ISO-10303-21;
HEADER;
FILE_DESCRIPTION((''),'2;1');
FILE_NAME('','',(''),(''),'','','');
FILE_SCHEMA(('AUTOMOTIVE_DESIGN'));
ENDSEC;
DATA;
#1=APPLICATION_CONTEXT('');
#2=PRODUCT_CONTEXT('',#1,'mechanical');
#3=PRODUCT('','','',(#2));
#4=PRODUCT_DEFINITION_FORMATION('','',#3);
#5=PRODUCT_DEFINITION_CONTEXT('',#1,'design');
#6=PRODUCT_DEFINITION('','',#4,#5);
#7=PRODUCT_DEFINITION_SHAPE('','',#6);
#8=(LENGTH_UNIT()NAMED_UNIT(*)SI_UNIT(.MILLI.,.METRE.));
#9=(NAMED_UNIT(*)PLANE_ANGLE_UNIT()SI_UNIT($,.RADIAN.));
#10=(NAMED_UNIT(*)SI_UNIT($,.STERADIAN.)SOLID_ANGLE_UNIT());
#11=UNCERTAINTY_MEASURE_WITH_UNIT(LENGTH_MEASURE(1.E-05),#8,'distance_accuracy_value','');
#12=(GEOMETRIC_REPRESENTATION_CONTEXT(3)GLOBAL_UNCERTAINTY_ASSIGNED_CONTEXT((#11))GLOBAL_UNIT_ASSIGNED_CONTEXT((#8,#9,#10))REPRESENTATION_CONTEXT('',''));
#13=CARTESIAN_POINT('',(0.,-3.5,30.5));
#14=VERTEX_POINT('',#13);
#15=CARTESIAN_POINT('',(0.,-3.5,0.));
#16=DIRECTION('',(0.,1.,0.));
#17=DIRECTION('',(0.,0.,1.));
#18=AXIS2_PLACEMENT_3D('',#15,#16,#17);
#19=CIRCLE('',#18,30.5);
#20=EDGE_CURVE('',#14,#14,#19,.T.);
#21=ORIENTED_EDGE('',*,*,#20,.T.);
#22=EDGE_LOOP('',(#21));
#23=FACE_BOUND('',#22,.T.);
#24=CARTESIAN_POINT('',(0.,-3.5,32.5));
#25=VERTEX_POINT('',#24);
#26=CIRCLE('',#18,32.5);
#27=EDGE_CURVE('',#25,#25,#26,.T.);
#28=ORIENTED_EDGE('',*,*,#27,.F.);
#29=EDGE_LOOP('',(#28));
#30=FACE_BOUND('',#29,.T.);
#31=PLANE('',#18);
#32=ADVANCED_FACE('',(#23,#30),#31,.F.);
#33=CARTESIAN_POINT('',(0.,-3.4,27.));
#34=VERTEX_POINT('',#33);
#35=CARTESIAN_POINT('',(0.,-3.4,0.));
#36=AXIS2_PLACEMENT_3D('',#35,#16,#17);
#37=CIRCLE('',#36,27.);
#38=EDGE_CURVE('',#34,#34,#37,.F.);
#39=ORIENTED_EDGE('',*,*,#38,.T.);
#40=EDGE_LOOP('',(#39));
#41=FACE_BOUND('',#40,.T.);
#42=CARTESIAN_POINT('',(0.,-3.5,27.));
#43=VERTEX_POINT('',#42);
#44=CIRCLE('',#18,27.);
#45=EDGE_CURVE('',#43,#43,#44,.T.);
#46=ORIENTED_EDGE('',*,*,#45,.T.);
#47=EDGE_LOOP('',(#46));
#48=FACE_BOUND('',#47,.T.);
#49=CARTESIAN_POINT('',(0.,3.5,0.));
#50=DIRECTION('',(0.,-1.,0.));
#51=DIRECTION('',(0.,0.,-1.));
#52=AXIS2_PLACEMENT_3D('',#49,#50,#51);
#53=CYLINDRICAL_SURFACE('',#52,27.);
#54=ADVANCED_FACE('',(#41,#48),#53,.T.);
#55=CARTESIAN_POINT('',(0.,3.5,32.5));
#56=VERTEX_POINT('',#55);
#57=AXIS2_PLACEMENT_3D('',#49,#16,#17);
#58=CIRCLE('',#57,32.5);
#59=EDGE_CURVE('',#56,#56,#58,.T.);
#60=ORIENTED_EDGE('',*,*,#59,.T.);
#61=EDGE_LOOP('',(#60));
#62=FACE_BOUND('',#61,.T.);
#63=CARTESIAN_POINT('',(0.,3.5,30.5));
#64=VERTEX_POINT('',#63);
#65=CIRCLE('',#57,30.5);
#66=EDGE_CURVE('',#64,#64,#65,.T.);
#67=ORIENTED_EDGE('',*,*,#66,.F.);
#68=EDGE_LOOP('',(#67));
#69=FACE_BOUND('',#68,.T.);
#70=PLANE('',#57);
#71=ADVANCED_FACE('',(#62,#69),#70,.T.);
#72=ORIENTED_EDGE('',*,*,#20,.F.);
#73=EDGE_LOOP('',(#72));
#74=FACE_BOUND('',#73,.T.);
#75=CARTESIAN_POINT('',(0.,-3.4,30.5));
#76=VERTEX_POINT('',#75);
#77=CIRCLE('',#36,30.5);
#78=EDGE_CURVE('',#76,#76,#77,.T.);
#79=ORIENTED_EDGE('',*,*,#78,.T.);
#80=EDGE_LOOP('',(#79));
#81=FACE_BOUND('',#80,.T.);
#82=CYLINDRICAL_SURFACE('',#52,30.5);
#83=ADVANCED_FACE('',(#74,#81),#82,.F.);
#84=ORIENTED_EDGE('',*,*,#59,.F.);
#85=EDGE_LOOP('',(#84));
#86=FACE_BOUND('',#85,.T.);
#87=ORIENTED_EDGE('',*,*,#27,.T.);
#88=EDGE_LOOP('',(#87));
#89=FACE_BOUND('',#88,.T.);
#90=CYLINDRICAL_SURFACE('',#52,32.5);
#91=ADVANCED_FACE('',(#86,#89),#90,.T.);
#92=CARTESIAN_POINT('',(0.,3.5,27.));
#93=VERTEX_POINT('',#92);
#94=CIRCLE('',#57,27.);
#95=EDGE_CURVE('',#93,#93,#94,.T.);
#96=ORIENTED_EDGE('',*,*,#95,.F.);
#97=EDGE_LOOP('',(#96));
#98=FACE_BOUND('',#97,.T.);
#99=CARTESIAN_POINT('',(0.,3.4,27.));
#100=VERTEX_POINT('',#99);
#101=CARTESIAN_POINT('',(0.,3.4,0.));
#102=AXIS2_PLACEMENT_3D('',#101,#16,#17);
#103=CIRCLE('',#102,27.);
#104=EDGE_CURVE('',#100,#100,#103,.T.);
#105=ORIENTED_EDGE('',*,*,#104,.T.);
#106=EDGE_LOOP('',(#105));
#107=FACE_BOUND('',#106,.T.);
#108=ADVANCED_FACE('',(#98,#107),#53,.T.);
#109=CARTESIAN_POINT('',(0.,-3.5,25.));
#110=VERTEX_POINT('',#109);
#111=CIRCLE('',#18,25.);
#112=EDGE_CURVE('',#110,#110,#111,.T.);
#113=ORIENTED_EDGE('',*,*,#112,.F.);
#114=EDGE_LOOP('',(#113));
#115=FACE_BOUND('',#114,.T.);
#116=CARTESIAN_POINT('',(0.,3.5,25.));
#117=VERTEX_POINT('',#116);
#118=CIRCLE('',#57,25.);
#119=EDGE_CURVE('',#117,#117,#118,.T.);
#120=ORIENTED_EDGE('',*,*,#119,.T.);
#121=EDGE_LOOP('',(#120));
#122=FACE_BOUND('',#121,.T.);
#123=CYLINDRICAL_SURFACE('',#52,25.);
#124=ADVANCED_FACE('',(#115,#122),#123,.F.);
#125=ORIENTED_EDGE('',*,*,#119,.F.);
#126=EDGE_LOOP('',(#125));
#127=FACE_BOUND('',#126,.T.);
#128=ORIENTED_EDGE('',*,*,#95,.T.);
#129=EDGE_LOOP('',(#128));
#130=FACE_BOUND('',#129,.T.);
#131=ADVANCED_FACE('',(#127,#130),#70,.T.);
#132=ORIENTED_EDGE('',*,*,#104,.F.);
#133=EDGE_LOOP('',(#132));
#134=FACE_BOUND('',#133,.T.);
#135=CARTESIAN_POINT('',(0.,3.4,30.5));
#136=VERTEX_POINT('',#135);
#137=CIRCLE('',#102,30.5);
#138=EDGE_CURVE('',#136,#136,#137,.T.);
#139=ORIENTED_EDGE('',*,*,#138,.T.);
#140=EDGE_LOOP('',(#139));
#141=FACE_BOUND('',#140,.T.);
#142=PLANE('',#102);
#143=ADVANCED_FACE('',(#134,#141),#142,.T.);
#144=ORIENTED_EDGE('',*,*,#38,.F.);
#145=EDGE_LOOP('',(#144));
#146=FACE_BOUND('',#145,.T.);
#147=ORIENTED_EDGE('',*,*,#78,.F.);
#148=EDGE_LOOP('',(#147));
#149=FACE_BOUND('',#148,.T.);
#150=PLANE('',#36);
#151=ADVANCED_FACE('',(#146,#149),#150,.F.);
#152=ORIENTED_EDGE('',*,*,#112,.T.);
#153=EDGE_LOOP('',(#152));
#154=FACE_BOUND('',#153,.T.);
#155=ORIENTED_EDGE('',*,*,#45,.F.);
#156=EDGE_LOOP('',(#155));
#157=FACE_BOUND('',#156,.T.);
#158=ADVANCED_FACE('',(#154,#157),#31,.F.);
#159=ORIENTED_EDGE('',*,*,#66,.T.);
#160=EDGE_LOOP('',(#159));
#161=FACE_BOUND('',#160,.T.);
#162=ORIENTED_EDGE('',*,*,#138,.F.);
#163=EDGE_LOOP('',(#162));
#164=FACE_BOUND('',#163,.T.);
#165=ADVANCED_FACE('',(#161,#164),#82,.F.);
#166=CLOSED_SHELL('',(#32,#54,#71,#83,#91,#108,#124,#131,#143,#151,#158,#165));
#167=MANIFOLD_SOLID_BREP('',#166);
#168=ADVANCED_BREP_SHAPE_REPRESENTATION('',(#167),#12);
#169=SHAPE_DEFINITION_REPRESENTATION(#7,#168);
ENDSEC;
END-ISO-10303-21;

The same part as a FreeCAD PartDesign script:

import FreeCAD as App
import Part
import Sketcher

doc = App.newDocument("Part")
body = doc.addObject("PartDesign::Body", "Body")

sketch1 = body.newObject("Sketcher::SketchObject", "Sketch")
sketch1.AttachmentSupport = (doc.getObject("XZ_Plane"), [""])
sketch1.MapMode = "FlatFace"
sketch1.addGeometry([
    Part.Circle(App.Vector(0, 0, 0), App.Vector(0, 0, 1), 32),
    Part.Circle(App.Vector(0, 0, 0), App.Vector(0, 0, 1), 30),
], False)
sketch1.addConstraint([
    Sketcher.Constraint("Coincident", 0, 3, -1, 1),
    Sketcher.Constraint("Coincident", 1, 3, -1, 1),
    Sketcher.Constraint("Diameter", 0, 65.0),
    Sketcher.Constraint("Diameter", 1, 61.0),
])
pad1 = body.newObject("PartDesign::Pad", "Pad")
pad1.Profile = sketch1
pad1.Length = 7
pad1.Midplane = True
body2 = doc.addObject("PartDesign::Body", "Body001")

sketch2 = body2.newObject("Sketcher::SketchObject", "Sketch001")
sketch2.AttachmentSupport = (doc.getObject("XZ_Plane001"), [""])
sketch2.MapMode = "FlatFace"
sketch2.addGeometry([
    Part.Circle(App.Vector(0, 0, 0), App.Vector(0, 0, 1), 27),
    Part.Circle(App.Vector(0, 0, 0), App.Vector(0, 0, 1), 25),
], False)
sketch2.addConstraint([
    Sketcher.Constraint("Coincident", 0, 3, -1, 1),
    Sketcher.Constraint("Coincident", 1, 3, -1, 1),
    Sketcher.Constraint("Diameter", 0, 54.0),
    Sketcher.Constraint("Diameter", 1, 50.0),
])
pad2 = body2.newObject("PartDesign::Pad", "Pad001")
pad2.Profile = sketch2
pad2.Length = 7
pad2.Midplane = True
body.AllowCompound = True
doc.recompute()

boolean = body.newObject("PartDesign::Boolean", "Boolean")
boolean.Type = "Fuse"
boolean.addObjects([body2])

sketch3 = body.newObject("Sketcher::SketchObject", "Sketch002")
sketch3.AttachmentSupport = (doc.getObject("XZ_Plane"), [""])
sketch3.MapMode = "FlatFace"
sketch3.addGeometry([
    Part.Circle(App.Vector(0, 0, 0), App.Vector(0, 0, 1), 30),
    Part.Circle(App.Vector(0, 0, 0), App.Vector(0, 0, 1), 27),
], False)
sketch3.addConstraint([
    Sketcher.Constraint("Coincident", 0, 3, -1, 1),
    Sketcher.Constraint("Coincident", 1, 3, -1, 1),
    Sketcher.Constraint("Diameter", 0, 61.0),
    Sketcher.Constraint("Diameter", 1, 54.0),
])
pad3 = body.newObject("PartDesign::Pad", "Pad002")
pad3.Profile = sketch3
pad3.Length = 6.8
pad3.Midplane = True

doc.recompute()
